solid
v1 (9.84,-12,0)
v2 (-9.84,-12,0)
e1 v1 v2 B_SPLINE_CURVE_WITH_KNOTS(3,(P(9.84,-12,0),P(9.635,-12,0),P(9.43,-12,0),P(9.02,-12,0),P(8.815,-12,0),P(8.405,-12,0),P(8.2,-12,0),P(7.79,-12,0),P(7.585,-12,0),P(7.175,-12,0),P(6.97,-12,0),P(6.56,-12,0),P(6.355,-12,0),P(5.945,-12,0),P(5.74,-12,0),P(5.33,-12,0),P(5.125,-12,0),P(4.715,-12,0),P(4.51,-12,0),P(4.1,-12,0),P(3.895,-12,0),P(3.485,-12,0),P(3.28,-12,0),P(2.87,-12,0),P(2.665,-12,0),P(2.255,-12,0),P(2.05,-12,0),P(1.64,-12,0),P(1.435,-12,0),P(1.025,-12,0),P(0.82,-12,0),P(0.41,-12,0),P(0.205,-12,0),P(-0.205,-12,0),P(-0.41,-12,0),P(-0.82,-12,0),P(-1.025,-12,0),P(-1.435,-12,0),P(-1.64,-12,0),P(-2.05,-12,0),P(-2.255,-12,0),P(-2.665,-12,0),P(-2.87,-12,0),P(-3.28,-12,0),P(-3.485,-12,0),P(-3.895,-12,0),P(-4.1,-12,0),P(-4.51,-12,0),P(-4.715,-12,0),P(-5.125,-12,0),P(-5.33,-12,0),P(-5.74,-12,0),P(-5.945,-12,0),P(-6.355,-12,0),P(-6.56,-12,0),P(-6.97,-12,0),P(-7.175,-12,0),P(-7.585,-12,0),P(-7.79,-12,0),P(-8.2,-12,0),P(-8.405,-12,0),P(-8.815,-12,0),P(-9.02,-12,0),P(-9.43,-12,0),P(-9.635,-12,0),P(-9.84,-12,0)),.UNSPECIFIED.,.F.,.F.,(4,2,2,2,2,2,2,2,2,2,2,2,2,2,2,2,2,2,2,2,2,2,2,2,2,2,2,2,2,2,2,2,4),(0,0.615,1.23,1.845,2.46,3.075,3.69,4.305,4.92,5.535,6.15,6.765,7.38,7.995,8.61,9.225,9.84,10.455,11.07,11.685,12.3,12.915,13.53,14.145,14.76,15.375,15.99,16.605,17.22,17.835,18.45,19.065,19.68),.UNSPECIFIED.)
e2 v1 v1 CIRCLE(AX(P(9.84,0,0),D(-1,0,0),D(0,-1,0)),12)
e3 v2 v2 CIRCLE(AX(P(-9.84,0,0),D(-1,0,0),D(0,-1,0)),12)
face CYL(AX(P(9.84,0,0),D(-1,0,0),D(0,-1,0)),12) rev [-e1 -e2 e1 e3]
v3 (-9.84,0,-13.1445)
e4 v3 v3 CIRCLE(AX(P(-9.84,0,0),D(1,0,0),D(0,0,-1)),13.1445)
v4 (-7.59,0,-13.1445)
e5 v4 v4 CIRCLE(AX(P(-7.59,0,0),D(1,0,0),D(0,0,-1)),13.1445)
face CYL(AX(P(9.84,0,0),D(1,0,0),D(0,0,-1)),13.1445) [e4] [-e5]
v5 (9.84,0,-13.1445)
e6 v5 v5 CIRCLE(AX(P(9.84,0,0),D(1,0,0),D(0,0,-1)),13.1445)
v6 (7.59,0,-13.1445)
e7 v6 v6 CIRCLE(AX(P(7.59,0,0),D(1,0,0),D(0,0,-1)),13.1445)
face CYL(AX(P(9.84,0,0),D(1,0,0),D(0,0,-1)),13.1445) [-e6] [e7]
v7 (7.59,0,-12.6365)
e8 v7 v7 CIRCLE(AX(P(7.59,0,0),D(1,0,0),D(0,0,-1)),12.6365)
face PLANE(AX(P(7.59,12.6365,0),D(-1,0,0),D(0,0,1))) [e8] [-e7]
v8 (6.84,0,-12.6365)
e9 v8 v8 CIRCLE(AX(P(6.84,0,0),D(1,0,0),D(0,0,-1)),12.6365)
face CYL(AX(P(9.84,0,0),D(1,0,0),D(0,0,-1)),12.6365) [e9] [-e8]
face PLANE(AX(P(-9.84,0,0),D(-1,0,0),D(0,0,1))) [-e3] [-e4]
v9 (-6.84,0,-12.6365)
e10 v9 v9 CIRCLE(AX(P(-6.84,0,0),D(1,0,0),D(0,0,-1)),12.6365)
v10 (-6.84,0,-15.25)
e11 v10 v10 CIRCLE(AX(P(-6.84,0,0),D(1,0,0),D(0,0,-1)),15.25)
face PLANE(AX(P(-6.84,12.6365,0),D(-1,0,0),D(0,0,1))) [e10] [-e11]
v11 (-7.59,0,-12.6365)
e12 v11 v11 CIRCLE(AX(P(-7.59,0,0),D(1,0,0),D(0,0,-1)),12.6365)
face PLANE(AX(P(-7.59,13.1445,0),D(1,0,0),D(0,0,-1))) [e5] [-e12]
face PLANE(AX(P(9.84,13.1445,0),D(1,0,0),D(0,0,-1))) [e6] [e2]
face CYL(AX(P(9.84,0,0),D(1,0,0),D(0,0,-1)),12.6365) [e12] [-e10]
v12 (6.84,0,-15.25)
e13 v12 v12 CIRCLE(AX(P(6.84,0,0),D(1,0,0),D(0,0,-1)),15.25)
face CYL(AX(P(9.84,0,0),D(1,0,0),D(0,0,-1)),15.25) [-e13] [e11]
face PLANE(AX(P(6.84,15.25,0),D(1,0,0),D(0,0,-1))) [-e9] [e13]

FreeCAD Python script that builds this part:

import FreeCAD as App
import Part
import Sketcher


def add_polygon(sketch, points):
    """Adds a closed chain of lines whose ends are joined by coincident constraints."""
    first, n = sketch.GeometryCount, len(points)
    for a, b in zip(points, points[1:] + points[:1]):
        sketch.addGeometry(Part.LineSegment(App.Vector(*a, 0), App.Vector(*b, 0)), False)
    for i in range(n):
        sketch.addConstraint(Sketcher.Constraint("Coincident", first + i, 2, first + (i + 1) % n, 1))

doc = App.newDocument("Part")
body = doc.addObject("PartDesign::Body", "Body")

# Sketch on XY plane
sketch1 = body.newObject("Sketcher::SketchObject", "Sketch")
sketch1.AttachmentSupport = (doc.getObject("XY_Plane"), [""])
sketch1.MapMode = "FlatFace"
add_polygon(sketch1, [(-9.8, 0), (9.8, 0), (9.8, 13.1), (7.6, 13.1), (7.6, 12.6), (6.8, 12.6), (6.8, 15.2), (-6.8, 15.2), (-6.8, 12.6), (-7.6, 12.6), (-7.6, 13.1), (-9.8, 13.1)])  # lines 0-11
sketch1.addConstraint([
    Sketcher.Constraint("Horizontal", 0),
    Sketcher.Constraint("Vertical", 1),
    Sketcher.Constraint("Horizontal", 2),
    Sketcher.Constraint("Vertical", 3),
    Sketcher.Constraint("Horizontal", 4),
    Sketcher.Constraint("Vertical", 5),
    Sketcher.Constraint("Horizontal", 6),
    Sketcher.Constraint("Vertical", 7),
    Sketcher.Constraint("Horizontal", 8),
    Sketcher.Constraint("Vertical", 9),
    Sketcher.Constraint("Horizontal", 10),
    Sketcher.Constraint("Vertical", 11),
    Sketcher.Constraint("Symmetric", 0, 2, 11, 2, -1, 1),
    Sketcher.Constraint("Symmetric", 4, 2, 7, 2, -2),
    Sketcher.Constraint("Symmetric", 2, 2, 9, 2, -2),
    Sketcher.Constraint("DistanceX", 4, 2, 1, 2, 3.0),
    Sketcher.Constraint("DistanceX", 0, 1, 0, 2, 19.68),
    Sketcher.Constraint("DistanceX", 2, 2, 2, 1, 2.25),
    Sketcher.Constraint("DistanceY", 3, 2, 3, 1, 0.508),
    Sketcher.Constraint("DistanceY", -1, 1, 5, 2, 15.25),
    Sketcher.Constraint("DistanceY", 1, 1, 1, 2, 13.1445),
])
revolution = body.newObject("PartDesign::Revolution", "Revolution")
revolution.Profile = sketch1
revolution.ReferenceAxis = (sketch1, ["H_Axis"])
revolution.Angle = 360

# Sketch on YZ plane
sketch2 = body.newObject("Sketcher::SketchObject", "Sketch001")
sketch2.AttachmentSupport = (doc.getObject("YZ_Plane"), [""])
sketch2.MapMode = "FlatFace"
sketch2.AttachmentOffset = App.Placement(App.Vector(0, 0, -9.84), App.Rotation())
sketch2.addGeometry(Part.Circle(App.Vector(0, 0, 0), App.Vector(0, 0, 1), 12), False)
sketch2.addConstraint([
    Sketcher.Constraint("Coincident", 0, 3, -1, 1),
    Sketcher.Constraint("Diameter", 0, 24.0),
])
pocket1 = body.newObject("PartDesign::Pocket", "Pocket")
pocket1.Profile = sketch2
pocket1.Type = "ThroughAll"
pocket1.Reversed = True

doc.recompute()
